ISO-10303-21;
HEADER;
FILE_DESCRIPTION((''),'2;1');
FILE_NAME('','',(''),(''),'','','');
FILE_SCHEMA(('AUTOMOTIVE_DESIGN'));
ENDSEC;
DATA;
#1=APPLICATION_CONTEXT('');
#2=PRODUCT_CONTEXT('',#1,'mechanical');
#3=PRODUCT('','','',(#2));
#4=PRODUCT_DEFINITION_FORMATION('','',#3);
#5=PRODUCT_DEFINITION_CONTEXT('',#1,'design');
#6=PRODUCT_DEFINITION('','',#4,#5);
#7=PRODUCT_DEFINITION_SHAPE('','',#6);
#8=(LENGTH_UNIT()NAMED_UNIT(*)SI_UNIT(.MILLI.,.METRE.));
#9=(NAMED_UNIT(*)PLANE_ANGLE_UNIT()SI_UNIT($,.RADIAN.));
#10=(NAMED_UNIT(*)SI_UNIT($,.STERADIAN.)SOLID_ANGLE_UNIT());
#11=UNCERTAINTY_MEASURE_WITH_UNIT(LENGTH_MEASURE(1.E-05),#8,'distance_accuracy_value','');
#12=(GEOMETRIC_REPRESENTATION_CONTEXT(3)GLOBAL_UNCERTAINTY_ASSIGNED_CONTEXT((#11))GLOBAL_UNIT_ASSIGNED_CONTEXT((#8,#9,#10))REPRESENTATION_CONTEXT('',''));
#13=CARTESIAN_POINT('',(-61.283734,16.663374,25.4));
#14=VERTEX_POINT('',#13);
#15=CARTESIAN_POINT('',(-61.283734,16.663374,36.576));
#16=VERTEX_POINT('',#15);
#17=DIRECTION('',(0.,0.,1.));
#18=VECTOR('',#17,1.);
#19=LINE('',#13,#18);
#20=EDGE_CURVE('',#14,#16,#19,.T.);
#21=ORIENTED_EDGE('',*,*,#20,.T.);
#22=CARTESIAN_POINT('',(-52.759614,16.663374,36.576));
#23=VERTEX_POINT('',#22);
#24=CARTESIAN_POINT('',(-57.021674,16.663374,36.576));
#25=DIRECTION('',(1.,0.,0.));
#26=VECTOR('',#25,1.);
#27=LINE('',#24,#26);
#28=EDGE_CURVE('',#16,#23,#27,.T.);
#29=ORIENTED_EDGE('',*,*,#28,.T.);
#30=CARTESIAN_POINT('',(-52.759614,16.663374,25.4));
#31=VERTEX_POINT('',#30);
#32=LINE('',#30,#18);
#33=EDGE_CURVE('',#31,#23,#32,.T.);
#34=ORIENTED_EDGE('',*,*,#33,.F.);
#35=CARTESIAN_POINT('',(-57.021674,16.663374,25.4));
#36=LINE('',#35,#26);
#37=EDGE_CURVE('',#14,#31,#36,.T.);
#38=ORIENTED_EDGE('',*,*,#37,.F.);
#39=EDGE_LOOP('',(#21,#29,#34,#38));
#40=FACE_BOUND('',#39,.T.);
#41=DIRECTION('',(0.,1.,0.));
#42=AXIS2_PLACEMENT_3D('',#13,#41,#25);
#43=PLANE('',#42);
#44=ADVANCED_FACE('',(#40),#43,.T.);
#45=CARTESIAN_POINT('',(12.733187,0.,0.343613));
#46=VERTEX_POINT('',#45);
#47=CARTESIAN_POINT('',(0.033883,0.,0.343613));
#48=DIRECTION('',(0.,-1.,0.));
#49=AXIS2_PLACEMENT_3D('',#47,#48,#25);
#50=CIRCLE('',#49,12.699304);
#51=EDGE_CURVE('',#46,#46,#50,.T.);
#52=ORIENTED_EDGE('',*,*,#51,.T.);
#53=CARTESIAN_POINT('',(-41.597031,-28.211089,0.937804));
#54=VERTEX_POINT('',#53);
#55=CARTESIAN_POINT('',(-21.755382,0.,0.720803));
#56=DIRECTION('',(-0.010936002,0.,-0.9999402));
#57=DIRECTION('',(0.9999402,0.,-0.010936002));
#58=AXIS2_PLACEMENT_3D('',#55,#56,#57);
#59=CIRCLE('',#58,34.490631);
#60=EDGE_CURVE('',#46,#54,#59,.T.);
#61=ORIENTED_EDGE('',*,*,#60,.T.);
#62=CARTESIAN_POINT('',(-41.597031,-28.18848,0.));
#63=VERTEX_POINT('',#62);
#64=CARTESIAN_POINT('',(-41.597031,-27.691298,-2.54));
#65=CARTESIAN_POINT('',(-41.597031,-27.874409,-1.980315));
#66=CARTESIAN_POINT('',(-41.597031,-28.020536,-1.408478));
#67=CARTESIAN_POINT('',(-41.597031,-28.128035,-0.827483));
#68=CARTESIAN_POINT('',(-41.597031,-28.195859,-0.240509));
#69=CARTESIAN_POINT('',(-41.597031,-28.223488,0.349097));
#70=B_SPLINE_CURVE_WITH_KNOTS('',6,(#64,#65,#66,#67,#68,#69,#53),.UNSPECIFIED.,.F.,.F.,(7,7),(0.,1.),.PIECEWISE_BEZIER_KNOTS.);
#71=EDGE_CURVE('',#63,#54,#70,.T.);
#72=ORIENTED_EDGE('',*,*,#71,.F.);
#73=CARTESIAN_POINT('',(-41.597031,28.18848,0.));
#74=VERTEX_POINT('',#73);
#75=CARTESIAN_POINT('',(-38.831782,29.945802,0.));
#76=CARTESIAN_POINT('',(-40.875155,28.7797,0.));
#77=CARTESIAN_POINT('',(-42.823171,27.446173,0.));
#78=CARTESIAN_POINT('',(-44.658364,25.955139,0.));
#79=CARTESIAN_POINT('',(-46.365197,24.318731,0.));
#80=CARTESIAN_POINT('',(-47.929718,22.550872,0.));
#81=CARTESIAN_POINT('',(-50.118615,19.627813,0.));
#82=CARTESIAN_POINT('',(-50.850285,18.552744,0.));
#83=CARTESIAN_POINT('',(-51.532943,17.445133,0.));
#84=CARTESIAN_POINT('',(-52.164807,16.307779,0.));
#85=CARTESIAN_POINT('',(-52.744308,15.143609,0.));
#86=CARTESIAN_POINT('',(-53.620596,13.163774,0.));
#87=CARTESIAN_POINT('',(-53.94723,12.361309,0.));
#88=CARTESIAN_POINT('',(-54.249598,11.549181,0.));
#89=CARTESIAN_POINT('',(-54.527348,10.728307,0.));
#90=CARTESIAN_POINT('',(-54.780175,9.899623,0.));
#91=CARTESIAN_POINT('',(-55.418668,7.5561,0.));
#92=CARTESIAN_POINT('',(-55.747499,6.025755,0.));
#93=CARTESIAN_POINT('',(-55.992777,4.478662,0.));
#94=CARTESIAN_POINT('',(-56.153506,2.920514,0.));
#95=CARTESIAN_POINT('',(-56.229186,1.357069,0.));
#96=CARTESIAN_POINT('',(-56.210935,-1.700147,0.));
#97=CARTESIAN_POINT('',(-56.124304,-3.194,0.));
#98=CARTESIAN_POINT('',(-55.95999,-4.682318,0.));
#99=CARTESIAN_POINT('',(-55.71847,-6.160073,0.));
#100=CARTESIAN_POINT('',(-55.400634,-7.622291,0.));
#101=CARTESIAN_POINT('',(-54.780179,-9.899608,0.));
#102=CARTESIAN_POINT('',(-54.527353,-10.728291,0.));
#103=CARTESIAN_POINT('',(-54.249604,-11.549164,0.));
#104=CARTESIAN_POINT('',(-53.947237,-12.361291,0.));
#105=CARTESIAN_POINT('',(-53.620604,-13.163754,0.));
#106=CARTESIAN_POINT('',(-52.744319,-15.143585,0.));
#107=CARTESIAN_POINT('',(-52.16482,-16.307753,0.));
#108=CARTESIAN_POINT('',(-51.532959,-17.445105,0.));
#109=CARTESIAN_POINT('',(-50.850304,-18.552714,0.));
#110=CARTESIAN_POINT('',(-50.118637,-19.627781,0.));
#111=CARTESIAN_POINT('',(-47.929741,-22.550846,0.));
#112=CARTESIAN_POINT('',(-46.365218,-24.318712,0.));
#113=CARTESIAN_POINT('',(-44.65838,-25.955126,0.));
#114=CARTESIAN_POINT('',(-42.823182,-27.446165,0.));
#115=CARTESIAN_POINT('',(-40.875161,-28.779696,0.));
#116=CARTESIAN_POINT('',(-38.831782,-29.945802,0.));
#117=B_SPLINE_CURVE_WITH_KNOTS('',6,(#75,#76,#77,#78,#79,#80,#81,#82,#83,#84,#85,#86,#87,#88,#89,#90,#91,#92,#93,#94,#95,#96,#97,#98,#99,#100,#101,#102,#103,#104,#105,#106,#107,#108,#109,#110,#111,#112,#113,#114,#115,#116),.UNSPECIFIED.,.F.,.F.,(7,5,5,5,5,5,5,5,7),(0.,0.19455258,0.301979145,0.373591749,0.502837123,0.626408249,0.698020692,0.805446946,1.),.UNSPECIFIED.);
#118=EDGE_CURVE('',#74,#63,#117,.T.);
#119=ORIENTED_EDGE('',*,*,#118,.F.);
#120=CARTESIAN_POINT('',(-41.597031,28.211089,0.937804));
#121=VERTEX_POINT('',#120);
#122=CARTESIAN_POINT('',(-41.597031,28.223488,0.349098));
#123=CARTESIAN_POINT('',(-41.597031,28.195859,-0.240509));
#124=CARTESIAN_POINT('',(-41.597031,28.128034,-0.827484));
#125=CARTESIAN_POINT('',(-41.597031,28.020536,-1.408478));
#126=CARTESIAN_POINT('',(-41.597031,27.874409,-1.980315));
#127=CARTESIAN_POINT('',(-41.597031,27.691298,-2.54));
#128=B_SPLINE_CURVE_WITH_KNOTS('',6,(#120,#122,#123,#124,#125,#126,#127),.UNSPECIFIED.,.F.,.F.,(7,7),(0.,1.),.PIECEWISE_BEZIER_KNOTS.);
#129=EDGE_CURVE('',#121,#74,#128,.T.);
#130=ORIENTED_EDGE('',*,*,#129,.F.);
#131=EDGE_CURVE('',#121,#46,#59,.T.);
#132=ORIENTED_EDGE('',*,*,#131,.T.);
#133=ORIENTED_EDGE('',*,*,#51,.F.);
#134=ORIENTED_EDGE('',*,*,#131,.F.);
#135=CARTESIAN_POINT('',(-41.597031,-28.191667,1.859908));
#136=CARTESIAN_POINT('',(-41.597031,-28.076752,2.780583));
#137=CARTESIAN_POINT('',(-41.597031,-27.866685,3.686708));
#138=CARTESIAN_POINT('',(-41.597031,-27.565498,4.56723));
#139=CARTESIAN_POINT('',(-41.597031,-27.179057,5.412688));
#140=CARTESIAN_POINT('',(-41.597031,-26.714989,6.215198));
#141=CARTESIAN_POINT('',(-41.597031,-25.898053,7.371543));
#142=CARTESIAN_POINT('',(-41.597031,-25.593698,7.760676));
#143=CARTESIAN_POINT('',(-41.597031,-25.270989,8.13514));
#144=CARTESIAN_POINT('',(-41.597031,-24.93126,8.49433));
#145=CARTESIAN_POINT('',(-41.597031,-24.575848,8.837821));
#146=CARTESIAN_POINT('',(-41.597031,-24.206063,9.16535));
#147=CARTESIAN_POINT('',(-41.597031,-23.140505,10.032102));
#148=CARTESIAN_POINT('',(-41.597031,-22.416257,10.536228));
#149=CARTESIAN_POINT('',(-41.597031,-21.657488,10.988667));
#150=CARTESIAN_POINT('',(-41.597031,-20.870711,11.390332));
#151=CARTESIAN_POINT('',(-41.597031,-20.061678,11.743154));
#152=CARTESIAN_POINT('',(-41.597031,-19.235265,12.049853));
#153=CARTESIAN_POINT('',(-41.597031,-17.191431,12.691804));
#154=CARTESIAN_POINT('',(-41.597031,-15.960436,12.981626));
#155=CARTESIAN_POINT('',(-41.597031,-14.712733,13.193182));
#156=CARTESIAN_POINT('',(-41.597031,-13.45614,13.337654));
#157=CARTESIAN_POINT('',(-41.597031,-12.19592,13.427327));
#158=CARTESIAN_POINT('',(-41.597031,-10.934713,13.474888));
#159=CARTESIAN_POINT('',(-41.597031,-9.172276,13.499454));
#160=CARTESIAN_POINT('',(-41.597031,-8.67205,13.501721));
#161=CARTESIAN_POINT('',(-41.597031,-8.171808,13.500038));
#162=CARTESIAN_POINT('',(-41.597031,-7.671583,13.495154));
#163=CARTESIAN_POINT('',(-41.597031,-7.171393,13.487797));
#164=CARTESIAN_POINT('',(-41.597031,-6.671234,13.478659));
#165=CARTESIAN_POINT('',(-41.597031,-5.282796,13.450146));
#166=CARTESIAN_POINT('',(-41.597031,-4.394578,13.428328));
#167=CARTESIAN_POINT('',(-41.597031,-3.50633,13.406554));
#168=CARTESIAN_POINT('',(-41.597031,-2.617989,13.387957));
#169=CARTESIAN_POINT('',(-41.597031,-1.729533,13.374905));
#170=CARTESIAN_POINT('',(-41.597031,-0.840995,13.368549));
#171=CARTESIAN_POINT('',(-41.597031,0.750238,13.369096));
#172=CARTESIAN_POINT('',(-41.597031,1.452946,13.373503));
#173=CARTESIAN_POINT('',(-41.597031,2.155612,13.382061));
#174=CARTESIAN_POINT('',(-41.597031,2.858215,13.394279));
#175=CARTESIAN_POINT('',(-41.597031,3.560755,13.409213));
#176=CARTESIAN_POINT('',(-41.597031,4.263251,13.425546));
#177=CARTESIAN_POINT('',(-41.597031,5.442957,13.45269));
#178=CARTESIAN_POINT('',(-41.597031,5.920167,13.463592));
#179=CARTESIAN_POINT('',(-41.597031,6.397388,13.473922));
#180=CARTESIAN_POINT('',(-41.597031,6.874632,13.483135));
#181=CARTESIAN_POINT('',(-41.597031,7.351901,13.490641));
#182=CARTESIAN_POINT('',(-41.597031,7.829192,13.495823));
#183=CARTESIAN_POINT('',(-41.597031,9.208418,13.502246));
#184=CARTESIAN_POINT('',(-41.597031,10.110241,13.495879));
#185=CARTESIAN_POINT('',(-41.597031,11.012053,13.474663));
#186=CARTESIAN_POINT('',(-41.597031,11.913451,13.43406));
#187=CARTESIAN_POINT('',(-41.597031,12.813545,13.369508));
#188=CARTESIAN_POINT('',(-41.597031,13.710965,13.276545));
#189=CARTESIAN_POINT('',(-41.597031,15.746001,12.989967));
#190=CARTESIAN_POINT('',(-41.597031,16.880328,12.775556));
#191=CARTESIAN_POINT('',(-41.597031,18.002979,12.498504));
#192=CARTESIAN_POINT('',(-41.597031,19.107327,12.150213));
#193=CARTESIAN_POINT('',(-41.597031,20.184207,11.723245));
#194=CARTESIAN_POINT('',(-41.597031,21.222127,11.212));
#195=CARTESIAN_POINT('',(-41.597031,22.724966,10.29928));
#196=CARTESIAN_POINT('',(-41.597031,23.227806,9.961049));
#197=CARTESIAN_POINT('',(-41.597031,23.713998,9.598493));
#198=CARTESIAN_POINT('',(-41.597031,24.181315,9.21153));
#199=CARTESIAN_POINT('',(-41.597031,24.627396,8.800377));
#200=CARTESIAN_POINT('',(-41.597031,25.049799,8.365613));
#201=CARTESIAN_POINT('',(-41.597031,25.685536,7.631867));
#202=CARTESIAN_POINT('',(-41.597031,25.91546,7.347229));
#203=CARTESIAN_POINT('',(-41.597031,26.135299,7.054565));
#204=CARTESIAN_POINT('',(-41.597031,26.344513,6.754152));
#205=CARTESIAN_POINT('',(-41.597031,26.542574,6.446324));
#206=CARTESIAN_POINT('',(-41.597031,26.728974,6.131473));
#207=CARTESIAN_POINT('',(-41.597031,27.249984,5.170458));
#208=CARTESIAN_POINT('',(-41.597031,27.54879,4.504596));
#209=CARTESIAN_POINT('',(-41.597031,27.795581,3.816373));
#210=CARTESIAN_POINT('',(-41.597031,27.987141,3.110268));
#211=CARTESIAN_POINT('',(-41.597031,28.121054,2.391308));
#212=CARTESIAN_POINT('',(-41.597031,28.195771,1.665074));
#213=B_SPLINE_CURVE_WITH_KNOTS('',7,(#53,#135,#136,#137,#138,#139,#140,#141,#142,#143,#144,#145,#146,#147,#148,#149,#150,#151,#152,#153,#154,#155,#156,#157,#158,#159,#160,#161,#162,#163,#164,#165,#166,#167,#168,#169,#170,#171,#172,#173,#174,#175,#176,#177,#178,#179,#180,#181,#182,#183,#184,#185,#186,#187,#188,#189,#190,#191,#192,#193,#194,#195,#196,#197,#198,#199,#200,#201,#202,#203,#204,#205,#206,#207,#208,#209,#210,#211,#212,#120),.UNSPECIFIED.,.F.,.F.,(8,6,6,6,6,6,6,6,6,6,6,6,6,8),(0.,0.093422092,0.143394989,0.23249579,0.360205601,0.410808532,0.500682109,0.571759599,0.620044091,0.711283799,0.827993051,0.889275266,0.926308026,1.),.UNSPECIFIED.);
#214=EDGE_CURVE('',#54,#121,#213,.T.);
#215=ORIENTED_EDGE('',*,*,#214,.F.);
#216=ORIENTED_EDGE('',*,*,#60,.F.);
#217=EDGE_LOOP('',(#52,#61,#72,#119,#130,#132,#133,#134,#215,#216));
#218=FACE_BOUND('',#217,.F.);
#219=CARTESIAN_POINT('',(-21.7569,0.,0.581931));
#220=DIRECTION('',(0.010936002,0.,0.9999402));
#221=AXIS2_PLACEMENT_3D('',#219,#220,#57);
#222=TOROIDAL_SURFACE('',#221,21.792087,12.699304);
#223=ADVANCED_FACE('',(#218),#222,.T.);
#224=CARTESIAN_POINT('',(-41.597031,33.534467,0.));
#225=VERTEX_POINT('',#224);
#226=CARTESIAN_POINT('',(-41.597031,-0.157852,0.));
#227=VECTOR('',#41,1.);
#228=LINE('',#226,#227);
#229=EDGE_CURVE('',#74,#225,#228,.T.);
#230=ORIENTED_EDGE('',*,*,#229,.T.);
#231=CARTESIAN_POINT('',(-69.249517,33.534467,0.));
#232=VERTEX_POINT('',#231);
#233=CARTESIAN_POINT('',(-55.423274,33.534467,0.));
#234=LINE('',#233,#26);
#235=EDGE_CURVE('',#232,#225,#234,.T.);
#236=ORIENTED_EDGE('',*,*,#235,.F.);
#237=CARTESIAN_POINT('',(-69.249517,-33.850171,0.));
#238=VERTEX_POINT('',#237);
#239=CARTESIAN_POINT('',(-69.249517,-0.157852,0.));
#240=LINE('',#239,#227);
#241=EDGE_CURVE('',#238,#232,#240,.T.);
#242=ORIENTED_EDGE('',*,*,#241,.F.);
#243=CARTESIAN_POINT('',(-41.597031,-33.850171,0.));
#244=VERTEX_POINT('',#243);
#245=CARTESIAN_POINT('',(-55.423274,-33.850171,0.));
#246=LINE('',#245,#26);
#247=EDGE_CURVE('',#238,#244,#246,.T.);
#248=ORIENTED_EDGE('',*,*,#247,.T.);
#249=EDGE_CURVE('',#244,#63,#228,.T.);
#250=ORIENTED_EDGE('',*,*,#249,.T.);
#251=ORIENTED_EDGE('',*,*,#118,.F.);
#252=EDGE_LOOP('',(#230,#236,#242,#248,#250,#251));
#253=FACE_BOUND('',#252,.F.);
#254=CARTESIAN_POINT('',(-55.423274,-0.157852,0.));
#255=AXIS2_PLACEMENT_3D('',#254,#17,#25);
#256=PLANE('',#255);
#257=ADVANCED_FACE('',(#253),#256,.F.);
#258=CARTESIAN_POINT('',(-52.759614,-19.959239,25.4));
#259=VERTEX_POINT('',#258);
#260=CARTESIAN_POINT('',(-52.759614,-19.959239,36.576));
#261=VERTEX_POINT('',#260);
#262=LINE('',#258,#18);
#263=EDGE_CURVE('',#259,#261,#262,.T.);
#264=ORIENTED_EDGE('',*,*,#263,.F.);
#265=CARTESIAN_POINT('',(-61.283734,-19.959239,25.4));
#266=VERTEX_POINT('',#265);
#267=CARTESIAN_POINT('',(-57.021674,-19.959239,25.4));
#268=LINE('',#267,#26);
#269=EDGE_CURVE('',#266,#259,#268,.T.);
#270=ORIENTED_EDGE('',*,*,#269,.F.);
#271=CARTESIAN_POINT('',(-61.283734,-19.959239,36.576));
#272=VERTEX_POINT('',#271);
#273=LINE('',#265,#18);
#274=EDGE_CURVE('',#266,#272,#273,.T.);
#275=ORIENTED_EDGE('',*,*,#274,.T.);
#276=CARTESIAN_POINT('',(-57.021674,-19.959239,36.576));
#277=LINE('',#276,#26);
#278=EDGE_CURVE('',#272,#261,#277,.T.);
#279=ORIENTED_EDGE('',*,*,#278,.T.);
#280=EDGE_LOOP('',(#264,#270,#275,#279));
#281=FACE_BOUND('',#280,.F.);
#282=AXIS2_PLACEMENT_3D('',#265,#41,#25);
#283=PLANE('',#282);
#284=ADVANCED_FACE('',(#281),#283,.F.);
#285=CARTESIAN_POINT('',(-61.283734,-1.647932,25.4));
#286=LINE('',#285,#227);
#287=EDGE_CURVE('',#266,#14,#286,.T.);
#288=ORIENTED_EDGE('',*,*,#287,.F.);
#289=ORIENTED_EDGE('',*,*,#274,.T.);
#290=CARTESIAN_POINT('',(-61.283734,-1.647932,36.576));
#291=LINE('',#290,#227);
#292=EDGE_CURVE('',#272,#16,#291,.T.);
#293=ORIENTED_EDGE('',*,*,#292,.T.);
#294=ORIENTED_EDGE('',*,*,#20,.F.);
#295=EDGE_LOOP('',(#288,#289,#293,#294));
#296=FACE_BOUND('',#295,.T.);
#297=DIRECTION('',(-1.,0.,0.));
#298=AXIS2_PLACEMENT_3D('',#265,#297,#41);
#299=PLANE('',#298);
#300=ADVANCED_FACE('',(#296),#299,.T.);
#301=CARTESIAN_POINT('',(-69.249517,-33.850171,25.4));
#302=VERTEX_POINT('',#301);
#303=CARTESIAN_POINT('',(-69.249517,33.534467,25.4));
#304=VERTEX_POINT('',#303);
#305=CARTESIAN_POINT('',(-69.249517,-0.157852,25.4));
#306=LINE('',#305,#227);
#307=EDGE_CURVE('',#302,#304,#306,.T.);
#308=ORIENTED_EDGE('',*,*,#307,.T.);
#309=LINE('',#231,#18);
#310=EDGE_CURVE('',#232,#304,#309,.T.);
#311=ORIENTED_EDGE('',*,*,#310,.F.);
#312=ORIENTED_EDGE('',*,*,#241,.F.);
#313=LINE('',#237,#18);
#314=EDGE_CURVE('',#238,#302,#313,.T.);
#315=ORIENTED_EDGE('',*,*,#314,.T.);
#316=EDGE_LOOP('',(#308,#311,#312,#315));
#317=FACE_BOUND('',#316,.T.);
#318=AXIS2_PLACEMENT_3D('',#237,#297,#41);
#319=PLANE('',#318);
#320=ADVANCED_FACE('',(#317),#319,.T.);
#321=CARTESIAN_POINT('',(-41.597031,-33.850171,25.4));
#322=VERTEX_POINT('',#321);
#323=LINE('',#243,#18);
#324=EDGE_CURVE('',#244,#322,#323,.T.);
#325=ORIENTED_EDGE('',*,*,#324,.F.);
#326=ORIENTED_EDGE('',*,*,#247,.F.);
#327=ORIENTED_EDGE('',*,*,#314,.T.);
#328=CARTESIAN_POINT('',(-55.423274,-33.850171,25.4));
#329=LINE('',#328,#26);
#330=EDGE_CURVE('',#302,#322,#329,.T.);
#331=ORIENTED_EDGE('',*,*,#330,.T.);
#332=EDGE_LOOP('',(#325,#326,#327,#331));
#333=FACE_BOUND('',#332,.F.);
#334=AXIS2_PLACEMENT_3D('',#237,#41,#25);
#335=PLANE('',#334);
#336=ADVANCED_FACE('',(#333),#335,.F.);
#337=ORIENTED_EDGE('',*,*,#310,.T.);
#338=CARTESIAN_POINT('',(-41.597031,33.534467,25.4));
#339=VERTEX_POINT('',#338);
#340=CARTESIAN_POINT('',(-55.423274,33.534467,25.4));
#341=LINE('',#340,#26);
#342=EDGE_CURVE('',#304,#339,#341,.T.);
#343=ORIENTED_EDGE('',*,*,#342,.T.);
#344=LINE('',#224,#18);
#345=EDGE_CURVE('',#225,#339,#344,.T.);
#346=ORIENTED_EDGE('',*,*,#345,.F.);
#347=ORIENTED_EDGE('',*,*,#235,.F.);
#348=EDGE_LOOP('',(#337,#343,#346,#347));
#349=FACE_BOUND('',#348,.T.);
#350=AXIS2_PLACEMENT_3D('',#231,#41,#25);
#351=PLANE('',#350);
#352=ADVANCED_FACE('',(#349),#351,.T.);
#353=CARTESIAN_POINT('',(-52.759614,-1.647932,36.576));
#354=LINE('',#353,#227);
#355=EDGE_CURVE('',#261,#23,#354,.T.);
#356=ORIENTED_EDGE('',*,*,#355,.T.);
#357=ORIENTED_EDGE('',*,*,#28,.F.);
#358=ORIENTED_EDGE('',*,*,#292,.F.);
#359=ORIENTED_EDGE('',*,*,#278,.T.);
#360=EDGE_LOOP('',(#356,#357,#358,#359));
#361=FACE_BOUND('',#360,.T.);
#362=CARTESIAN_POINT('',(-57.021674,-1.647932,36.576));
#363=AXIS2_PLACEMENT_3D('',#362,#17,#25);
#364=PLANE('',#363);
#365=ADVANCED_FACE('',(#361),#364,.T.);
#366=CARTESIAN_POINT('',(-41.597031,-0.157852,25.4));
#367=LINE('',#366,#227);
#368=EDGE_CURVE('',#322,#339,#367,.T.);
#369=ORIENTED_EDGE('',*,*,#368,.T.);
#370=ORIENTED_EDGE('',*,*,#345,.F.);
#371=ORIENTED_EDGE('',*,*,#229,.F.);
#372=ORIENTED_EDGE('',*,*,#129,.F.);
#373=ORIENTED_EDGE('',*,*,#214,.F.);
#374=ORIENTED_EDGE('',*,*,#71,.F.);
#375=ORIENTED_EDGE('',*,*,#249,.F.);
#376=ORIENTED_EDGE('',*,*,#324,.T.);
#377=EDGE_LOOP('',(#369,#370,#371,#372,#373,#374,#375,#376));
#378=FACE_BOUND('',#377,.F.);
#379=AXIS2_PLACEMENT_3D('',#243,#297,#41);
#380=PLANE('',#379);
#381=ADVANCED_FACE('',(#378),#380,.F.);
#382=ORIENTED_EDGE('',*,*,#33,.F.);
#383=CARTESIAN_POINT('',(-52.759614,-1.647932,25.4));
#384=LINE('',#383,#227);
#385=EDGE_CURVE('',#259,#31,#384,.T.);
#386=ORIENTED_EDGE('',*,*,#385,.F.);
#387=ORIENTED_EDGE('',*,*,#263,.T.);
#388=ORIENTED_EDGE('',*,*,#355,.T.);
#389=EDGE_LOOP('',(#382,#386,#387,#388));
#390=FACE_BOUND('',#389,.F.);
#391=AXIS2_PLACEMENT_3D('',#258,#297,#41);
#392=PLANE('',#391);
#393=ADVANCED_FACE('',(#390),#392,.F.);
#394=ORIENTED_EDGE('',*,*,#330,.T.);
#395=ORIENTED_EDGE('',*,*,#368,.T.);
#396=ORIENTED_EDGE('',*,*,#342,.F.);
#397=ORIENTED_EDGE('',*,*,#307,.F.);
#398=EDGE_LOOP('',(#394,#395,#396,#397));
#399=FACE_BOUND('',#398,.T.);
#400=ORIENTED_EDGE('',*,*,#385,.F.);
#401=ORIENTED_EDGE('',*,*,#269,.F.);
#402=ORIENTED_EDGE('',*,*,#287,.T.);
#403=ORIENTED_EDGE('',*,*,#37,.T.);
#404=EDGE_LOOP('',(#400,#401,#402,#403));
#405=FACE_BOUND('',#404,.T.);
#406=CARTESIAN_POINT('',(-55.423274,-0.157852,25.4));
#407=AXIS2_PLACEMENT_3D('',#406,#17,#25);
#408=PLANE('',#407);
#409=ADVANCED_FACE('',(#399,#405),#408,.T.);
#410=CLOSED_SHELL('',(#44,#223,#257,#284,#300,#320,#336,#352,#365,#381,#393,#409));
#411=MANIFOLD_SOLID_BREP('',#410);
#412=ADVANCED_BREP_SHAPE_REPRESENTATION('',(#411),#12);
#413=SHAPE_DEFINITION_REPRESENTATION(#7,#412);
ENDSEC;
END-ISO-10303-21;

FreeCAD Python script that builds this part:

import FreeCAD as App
import Part
import Sketcher
Q = App.Units.Quantity


def add_polygon(sketch, points):
    """Adds a closed chain of lines whose ends are joined by coincident constraints."""
    first, n = sketch.GeometryCount, len(points)
    for a, b in zip(points, points[1:] + points[:1]):
        sketch.addGeometry(Part.LineSegment(App.Vector(*a, 0), App.Vector(*b, 0)), False)
    for i in range(n):
        sketch.addConstraint(Sketcher.Constraint("Coincident", first + i, 2, first + (i + 1) % n, 1))

doc = App.newDocument("Part")
body = doc.addObject("PartDesign::Body", "Body")

# Sketch on XZ plane
sketch1 = body.newObject("Sketcher::SketchObject", "Sketch")
sketch1.AttachmentSupport = (doc.getObject("XZ_Plane"), [""])
sketch1.MapMode = "FlatFace"
sketch1.addGeometry(Part.Circle(App.Vector(0, 0, 0), App.Vector(0, 0, 1), 13), False)
sketch1.addGeometry(Part.LineSegment(App.Vector(-22, 1, 0), App.Vector(-22, -9, 0)), True)  # axis
sketch1.addConstraint(Sketcher.Constraint("Diameter", 0, Q("25.398608 mm")))
sketch1.addConstraint(Sketcher.Constraint("Distance", 1, Q("10 mm")))
sketch1.addConstraint(Sketcher.Constraint("DistanceX", 1, 1, -1, 1, Q("21.7569 mm")))
sketch1.addConstraint(Sketcher.Constraint("DistanceY", -1, 1, 1, 1, Q("0.581931 mm")))
sketch1.addConstraint(Sketcher.Constraint("DistanceX", 1, 2, -1, 1, Q("21.866261 mm")))
sketch1.addConstraint(Sketcher.Constraint("DistanceY", 0, 3, 1, 1, Q("0.238318 mm")))
sketch1.addConstraint(Sketcher.Constraint("DistanceX", -1, 1, 0, 3, Q("0.033883 mm")))
revolution = body.newObject("PartDesign::Revolution", "Revolution")
revolution.Profile = sketch1
revolution.ReferenceAxis = (sketch1, ["Axis0"])
revolution.Angle = 360

# Sketch on XY plane
sketch2 = body.newObject("Sketcher::SketchObject", "Sketch001")
sketch2.AttachmentSupport = (doc.getObject("XY_Plane"), [""])
sketch2.MapMode = "FlatFace"
add_polygon(sketch2, [(-69, 34), (-69, -34), (-42, -34), (-42, 34)])  # lines 0-3
sketch2.addConstraint(Sketcher.Constraint("Vertical", 0))
sketch2.addConstraint(Sketcher.Constraint("Horizontal", 1))
sketch2.addConstraint(Sketcher.Constraint("Vertical", 2))
sketch2.addConstraint(Sketcher.Constraint("Horizontal", 3))
sketch2.addConstraint(Sketcher.Constraint("DistanceX", 1, 1, 1, 2, Q("27.652487 mm")))
sketch2.addConstraint(Sketcher.Constraint("DistanceY", 0, 2, 0, 1, Q("67.384638 mm")))
sketch2.addConstraint(Sketcher.Constraint("DistanceY", 0, 2, -1, 1, Q("33.850171 mm")))
sketch2.addConstraint(Sketcher.Constraint("DistanceX", 1, 2, -1, 1, Q("41.597031 mm")))
pad1 = body.newObject("PartDesign::Pad", "Pad")
pad1.Profile = sketch2
pad1.Length = Q("1 in")

# Sketch on XY plane
sketch3 = body.newObject("Sketcher::SketchObject", "Sketch002")
sketch3.AttachmentSupport = (doc.getObject("XY_Plane"), [""])
sketch3.MapMode = "FlatFace"
sketch3.AttachmentOffset = App.Placement(App.Vector(0, 0, 1 * 25.4), App.Rotation())
add_polygon(sketch3, [(-61, 17), (-61, -20), (-53, -20), (-53, 17)])  # lines 0-3
sketch3.addConstraint(Sketcher.Constraint("Vertical", 0))
sketch3.addConstraint(Sketcher.Constraint("Horizontal", 1))
sketch3.addConstraint(Sketcher.Constraint("Vertical", 2))
sketch3.addConstraint(Sketcher.Constraint("Horizontal", 3))
sketch3.addConstraint(Sketcher.Constraint("DistanceX", 1, 1, 1, 2, Q("8.52412 mm")))
sketch3.addConstraint(Sketcher.Constraint("DistanceY", 0, 2, 0, 1, Q("36.622613 mm")))
sketch3.addConstraint(Sketcher.Constraint("DistanceY", 0, 2, -1, 1, Q("19.959239 mm")))
sketch3.addConstraint(Sketcher.Constraint("DistanceX", 0, 2, -1, 1, Q("61.283734 mm")))
pad2 = body.newObject("PartDesign::Pad", "Pad001")
pad2.Profile = sketch3
pad2.Length = Q("0.44 in")

doc.recompute()
